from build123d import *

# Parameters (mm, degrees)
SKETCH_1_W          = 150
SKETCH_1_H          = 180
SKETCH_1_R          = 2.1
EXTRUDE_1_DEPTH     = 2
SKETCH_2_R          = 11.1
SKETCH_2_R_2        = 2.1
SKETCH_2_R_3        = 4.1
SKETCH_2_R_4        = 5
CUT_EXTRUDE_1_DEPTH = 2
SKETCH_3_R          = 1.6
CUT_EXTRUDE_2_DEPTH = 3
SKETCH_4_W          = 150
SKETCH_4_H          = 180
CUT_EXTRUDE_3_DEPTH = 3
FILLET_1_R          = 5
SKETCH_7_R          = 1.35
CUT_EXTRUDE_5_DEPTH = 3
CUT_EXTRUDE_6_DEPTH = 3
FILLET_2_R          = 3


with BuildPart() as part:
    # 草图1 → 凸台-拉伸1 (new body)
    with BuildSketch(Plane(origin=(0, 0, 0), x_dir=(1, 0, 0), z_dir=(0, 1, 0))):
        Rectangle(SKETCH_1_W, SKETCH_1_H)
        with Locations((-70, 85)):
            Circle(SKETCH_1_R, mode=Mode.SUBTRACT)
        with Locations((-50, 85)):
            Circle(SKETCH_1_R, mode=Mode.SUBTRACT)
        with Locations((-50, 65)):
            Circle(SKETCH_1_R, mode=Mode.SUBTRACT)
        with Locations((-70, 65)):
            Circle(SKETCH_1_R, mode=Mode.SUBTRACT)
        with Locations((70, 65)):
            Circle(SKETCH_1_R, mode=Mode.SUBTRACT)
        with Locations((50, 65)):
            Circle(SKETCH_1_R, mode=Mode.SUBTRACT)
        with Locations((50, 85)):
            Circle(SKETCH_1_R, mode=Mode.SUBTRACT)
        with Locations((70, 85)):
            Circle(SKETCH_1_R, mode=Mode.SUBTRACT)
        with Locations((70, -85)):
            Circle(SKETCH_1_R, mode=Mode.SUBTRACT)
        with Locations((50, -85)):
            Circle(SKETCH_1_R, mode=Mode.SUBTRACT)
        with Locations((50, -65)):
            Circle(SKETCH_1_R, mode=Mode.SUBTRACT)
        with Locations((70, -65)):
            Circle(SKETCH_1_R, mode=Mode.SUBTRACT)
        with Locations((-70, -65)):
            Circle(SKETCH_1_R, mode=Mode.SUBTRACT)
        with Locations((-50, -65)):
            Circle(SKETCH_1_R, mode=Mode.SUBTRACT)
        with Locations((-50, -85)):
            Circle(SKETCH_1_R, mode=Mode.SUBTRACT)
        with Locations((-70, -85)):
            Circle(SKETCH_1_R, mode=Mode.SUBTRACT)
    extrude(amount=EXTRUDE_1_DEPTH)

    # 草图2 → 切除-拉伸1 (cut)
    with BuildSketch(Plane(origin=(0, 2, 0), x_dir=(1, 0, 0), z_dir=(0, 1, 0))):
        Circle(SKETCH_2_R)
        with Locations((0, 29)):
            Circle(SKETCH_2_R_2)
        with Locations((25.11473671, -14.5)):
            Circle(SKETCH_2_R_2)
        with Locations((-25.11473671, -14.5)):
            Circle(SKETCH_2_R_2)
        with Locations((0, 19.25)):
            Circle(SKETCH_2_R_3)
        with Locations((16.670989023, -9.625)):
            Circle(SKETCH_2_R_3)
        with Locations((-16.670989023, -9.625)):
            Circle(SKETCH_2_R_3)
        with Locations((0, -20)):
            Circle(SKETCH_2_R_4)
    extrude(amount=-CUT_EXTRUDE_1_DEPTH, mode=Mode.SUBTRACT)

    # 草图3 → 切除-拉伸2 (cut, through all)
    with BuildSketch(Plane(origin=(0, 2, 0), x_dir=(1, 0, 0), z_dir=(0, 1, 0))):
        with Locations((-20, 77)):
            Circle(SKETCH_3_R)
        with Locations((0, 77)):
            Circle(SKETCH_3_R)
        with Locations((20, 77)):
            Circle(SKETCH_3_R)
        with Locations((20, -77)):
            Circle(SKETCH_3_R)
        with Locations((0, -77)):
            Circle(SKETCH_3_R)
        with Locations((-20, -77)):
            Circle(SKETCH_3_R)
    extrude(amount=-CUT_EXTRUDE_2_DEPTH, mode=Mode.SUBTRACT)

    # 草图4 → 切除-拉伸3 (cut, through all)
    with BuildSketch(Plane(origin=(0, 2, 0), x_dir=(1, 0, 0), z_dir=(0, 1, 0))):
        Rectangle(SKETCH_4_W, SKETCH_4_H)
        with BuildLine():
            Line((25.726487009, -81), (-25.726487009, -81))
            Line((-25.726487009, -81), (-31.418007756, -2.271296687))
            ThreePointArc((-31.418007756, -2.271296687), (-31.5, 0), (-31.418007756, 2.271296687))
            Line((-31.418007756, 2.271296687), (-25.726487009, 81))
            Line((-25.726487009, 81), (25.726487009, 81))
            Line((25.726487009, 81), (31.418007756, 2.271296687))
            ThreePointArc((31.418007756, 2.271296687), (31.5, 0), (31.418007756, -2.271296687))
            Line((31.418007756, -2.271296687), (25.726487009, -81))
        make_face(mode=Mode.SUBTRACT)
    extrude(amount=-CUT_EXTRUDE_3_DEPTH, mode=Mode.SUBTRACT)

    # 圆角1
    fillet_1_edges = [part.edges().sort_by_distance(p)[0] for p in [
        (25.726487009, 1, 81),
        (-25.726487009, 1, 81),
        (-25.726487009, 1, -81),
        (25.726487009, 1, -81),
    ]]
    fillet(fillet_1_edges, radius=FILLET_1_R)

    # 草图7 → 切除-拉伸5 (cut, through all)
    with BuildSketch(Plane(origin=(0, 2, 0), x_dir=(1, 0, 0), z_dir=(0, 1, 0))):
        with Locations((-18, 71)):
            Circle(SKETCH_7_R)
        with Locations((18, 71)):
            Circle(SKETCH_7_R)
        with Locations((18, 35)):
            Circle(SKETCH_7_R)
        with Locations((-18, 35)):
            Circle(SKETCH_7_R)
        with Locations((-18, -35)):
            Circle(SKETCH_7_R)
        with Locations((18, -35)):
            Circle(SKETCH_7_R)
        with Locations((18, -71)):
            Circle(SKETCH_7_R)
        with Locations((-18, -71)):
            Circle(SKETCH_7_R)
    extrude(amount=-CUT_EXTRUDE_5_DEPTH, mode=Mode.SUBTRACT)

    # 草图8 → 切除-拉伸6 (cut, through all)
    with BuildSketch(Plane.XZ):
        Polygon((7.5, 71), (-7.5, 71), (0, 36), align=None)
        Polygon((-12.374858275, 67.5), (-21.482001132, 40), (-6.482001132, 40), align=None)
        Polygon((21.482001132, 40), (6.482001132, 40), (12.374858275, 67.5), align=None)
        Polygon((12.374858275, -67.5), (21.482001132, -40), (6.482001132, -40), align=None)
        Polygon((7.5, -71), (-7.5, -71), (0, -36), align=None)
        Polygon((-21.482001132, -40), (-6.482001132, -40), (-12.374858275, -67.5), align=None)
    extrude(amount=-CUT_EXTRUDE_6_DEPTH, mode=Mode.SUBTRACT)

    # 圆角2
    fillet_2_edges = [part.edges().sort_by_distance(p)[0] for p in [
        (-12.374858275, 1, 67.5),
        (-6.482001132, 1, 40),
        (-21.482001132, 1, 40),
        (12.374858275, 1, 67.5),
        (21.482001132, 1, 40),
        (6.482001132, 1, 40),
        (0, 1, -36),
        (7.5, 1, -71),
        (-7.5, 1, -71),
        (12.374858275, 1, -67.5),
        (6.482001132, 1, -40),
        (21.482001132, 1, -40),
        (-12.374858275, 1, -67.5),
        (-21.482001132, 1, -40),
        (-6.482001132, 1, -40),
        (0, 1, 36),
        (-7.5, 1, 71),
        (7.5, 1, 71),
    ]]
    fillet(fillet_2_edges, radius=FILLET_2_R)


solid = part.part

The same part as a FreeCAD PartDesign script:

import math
import FreeCAD as App
import Part
import Sketcher
from FreeCAD import Vector
Q = App.Units.Quantity


def edges_at(feature, points):
    """Names of the edges that pass closest to the given points."""
    edges = feature.Shape.Edges
    near = lambda p: min(range(len(edges)), key=lambda i: edges[i].distToShape(Part.Vertex(*p))[0])
    return sorted({f"Edge{near(p) + 1}" for p in points})


def add_polygon(sketch, points):
    """Adds a closed chain of lines whose ends are joined by coincident constraints."""
    first, n = sketch.GeometryCount, len(points)
    for a, b in zip(points, points[1:] + points[:1]):
        sketch.addGeometry(Part.LineSegment(App.Vector(*a, 0), App.Vector(*b, 0)), False)
    for i in range(n):
        sketch.addConstraint(Sketcher.Constraint("Coincident", first + i, 2, first + (i + 1) % n, 1))

doc = App.newDocument("Part")
body = doc.addObject("PartDesign::Body", "Body")

# Sketch on XZ plane
sketch1 = body.newObject("Sketcher::SketchObject", "Sketch")
sketch1.AttachmentSupport = (doc.getObject("XZ_Plane"), [""])
sketch1.MapMode = "FlatFace"
add_polygon(sketch1, [(-75, -90), (-75, 90), (75, 90), (75, -90)])  # lines 0-3
sketch1.addGeometry(Part.Circle(Vector(-70, 85, 0), Vector(0, 0, 1), 2.1), False)  # 4
sketch1.addGeometry(Part.Circle(Vector(-50, 85, 0), Vector(0, 0, 1), 2.1), False)  # 5
sketch1.addGeometry(Part.Circle(Vector(-70, 65, 0), Vector(0, 0, 1), 2.1), False)  # 6
sketch1.addGeometry(Part.Circle(Vector(-50, 65, 0), Vector(0, 0, 1), 2.1), False)  # 7
sketch1.addGeometry(Part.Circle(Vector(50, 85, 0), Vector(0, 0, 1), 2.1), False)  # 8
sketch1.addGeometry(Part.Circle(Vector(70, 85, 0), Vector(0, 0, 1), 2.1), False)  # 9
sketch1.addGeometry(Part.Circle(Vector(50, 65, 0), Vector(0, 0, 1), 2.1), False)  # 10
sketch1.addGeometry(Part.Circle(Vector(70, 65, 0), Vector(0, 0, 1), 2.1), False)  # 11
sketch1.addGeometry(Part.Circle(Vector(-70, -65, 0), Vector(0, 0, 1), 2.1), False)  # 12
sketch1.addGeometry(Part.Circle(Vector(-50, -65, 0), Vector(0, 0, 1), 2.1), False)  # 13
sketch1.addGeometry(Part.Circle(Vector(-70, -85, 0), Vector(0, 0, 1), 2.1), False)  # 14
sketch1.addGeometry(Part.Circle(Vector(-50, -85, 0), Vector(0, 0, 1), 2.1), False)  # 15
sketch1.addGeometry(Part.Circle(Vector(50, -65, 0), Vector(0, 0, 1), 2.1), False)  # 16
sketch1.addGeometry(Part.Circle(Vector(70, -65, 0), Vector(0, 0, 1), 2.1), False)  # 17
sketch1.addGeometry(Part.Circle(Vector(50, -85, 0), Vector(0, 0, 1), 2.1), False)  # 18
sketch1.addGeometry(Part.Circle(Vector(70, -85, 0), Vector(0, 0, 1), 2.1), False)  # 19
sketch1.addConstraint(Sketcher.Constraint("Vertical", 0))
sketch1.addConstraint(Sketcher.Constraint("Horizontal", 1))
sketch1.addConstraint(Sketcher.Constraint("Vertical", 2))
sketch1.addConstraint(Sketcher.Constraint("Horizontal", 3))
sketch1.addConstraint(Sketcher.Constraint("Equal", 4, 5))
sketch1.addConstraint(Sketcher.Constraint("Equal", 5, 6))
sketch1.addConstraint(Sketcher.Constraint("Equal", 6, 7))
sketch1.addConstraint(Sketcher.Constraint("Equal", 7, 8))
sketch1.addConstraint(Sketcher.Constraint("Equal", 8, 9))
sketch1.addConstraint(Sketcher.Constraint("Equal", 9, 10))
sketch1.addConstraint(Sketcher.Constraint("Equal", 10, 11))
sketch1.addConstraint(Sketcher.Constraint("Equal", 11, 12))
sketch1.addConstraint(Sketcher.Constraint("Equal", 12, 13))
sketch1.addConstraint(Sketcher.Constraint("Equal", 13, 14))
sketch1.addConstraint(Sketcher.Constraint("Equal", 14, 15))
sketch1.addConstraint(Sketcher.Constraint("Equal", 15, 16))
sketch1.addConstraint(Sketcher.Constraint("Equal", 16, 17))
sketch1.addConstraint(Sketcher.Constraint("Equal", 17, 18))
sketch1.addConstraint(Sketcher.Constraint("Equal", 18, 19))
sketch1.addConstraint(Sketcher.Constraint("Symmetric", 11, 3, 12, 3, -1, 1))
sketch1.addConstraint(Sketcher.Constraint("Symmetric", 10, 3, 13, 3, -1, 1))
sketch1.addConstraint(Sketcher.Constraint("Symmetric", 9, 3, 14, 3, -1, 1))
sketch1.addConstraint(Sketcher.Constraint("Symmetric", 8, 3, 15, 3, -1, 1))
sketch1.addConstraint(Sketcher.Constraint("Symmetric", 7, 3, 16, 3, -1, 1))
sketch1.addConstraint(Sketcher.Constraint("Symmetric", 6, 3, 17, 3, -1, 1))
sketch1.addConstraint(Sketcher.Constraint("Symmetric", 5, 3, 18, 3, -1, 1))
sketch1.addConstraint(Sketcher.Constraint("Symmetric", 4, 3, 19, 3, -1, 1))
sketch1.addConstraint(Sketcher.Constraint("Symmetric", 0, 2, 2, 2, -1, 1))
sketch1.addConstraint(Sketcher.Constraint("Symmetric", 5, 3, 8, 3, -2))
sketch1.addConstraint(Sketcher.Constraint("Symmetric", 4, 3, 9, 3, -2))
sketch1.addConstraint(Sketcher.Constraint("Symmetric", 7, 3, 10, 3, -2))
sketch1.addConstraint(Sketcher.Constraint("Symmetric", 6, 3, 11, 3, -2))
sketch1.addConstraint(Sketcher.Constraint("Horizontal", 4, 3, 5, 3))
sketch1.addConstraint(Sketcher.Constraint("Horizontal", 6, 3, 7, 3))
sketch1.addConstraint(Sketcher.Constraint("Vertical", 4, 3, 6, 3))
sketch1.addConstraint(Sketcher.Constraint("Vertical", 5, 3, 7, 3))
sketch1.addConstraint(Sketcher.Constraint("Diameter", 4, Q("4.2 mm")))
sketch1.addConstraint(Sketcher.Constraint("DistanceX", 1, 1, 1, 2, Q("150 mm")))
sketch1.addConstraint(Sketcher.Constraint("DistanceY", 0, 1, 0, 2, Q("180 mm")))
sketch1.addConstraint(Sketcher.Constraint("DistanceX", 4, 3, -1, 1, Q("70 mm")))
sketch1.addConstraint(Sketcher.Constraint("DistanceY", -1, 1, 4, 3, Q("85 mm")))
sketch1.addConstraint(Sketcher.Constraint("DistanceX", 5, 3, -1, 1, Q("50 mm")))
sketch1.addConstraint(Sketcher.Constraint("DistanceY", -1, 1, 6, 3, Q("65 mm")))
pad1 = body.newObject("PartDesign::Pad", "Pad")
pad1.Profile = sketch1
pad1.Length = 2
pad1.Reversed = True

# Sketch on XZ plane
sketch2 = body.newObject("Sketcher::SketchObject", "Sketch001")
sketch2.AttachmentSupport = (doc.getObject("XZ_Plane"), [""])
sketch2.MapMode = "FlatFace"
sketch2.AttachmentOffset = App.Placement(Vector(0, 0, -2), App.Rotation())
sketch2.addGeometry(Part.Circle(Vector(0, 0, 0), Vector(0, 0, 1), 11.1), False)
sketch2.addGeometry(Part.Circle(Vector(0, -29, 0), Vector(0, 0, 1), 2.1), False)
sketch2.addGeometry(Part.Circle(Vector(25.1, 14.5, 0), Vector(0, 0, 1), 2.1), False)
sketch2.addGeometry(Part.Circle(Vector(-25.1, 14.5, 0), Vector(0, 0, 1), 2.1), False)
sketch2.addGeometry(Part.Circle(Vector(0, -19.2, 0), Vector(0, 0, 1), 4.1), False)
sketch2.addGeometry(Part.Circle(Vector(16.7, 9.6, 0), Vector(0, 0, 1), 4.1), False)
sketch2.addGeometry(Part.Circle(Vector(-16.7, 9.6, 0), Vector(0, 0, 1), 4.1), False)
sketch2.addGeometry(Part.Circle(Vector(0, 20, 0), Vector(0, 0, 1), 5), False)
sketch2.addConstraint(Sketcher.Constraint("Coincident", 0, 3, -1, 1))
sketch2.addConstraint(Sketcher.Constraint("Equal", 1, 2))
sketch2.addConstraint(Sketcher.Constraint("Equal", 2, 3))
sketch2.addConstraint(Sketcher.Constraint("Equal", 4, 5))
sketch2.addConstraint(Sketcher.Constraint("Equal", 5, 6))
sketch2.addConstraint(Sketcher.Constraint("Symmetric", 2, 3, 3, 3, -2))
sketch2.addConstraint(Sketcher.Constraint("Symmetric", 5, 3, 6, 3, -2))
sketch2.addConstraint(Sketcher.Constraint("PointOnObject", 1, 3, -2))
sketch2.addConstraint(Sketcher.Constraint("PointOnObject", 4, 3, -2))
sketch2.addConstraint(Sketcher.Constraint("PointOnObject", 7, 3, -2))
sketch2.addConstraint(Sketcher.Constraint("Diameter", 7, Q("10 mm")))
sketch2.addConstraint(Sketcher.Constraint("Diameter", 0, Q("22.2 mm")))
sketch2.addConstraint(Sketcher.Constraint("Diameter", 1, Q("4.2 mm")))
sketch2.addConstraint(Sketcher.Constraint("Diameter", 4, Q("8.2 mm")))
sketch2.addConstraint(Sketcher.Constraint("DistanceY", 1, 3, -1, 1, Q("29 mm")))
sketch2.addConstraint(Sketcher.Constraint("DistanceY", -1, 1, 7, 3, Q("20 mm")))
sketch2.addConstraint(Sketcher.Constraint("DistanceY", -1, 1, 2, 3, Q("14.5 mm")))
sketch2.addConstraint(Sketcher.Constraint("DistanceY", 4, 3, -1, 1, Q("19.25 mm")))
sketch2.addConstraint(Sketcher.Constraint("DistanceY", -1, 1, 5, 3, Q("9.625 mm")))
sketch2.addConstraint(Sketcher.Constraint("DistanceX", -1, 1, 5, 3, Q("16.670989 mm")))
sketch2.addConstraint(Sketcher.Constraint("DistanceX", -1, 1, 2, 3, Q("25.114737 mm")))
pocket1 = body.newObject("PartDesign::Pocket", "Pocket")
pocket1.Profile = sketch2
pocket1.Length = 2
pocket1.Reversed = True

# Sketch on XZ plane
sketch3 = body.newObject("Sketcher::SketchObject", "Sketch002")
sketch3.AttachmentSupport = (doc.getObject("XZ_Plane"), [""])
sketch3.MapMode = "FlatFace"
sketch3.AttachmentOffset = App.Placement(Vector(0, 0, -2), App.Rotation())
sketch3.addGeometry(Part.Circle(Vector(-20, -77, 0), Vector(0, 0, 1), 1.6), False)
sketch3.addGeometry(Part.Circle(Vector(0, -77, 0), Vector(0, 0, 1), 1.6), False)
sketch3.addGeometry(Part.Circle(Vector(20, -77, 0), Vector(0, 0, 1), 1.6), False)
sketch3.addGeometry(Part.Circle(Vector(20, 77, 0), Vector(0, 0, 1), 1.6), False)
sketch3.addGeometry(Part.Circle(Vector(0, 77, 0), Vector(0, 0, 1), 1.6), False)
sketch3.addGeometry(Part.Circle(Vector(-20, 77, 0), Vector(0, 0, 1), 1.6), False)
sketch3.addConstraint(Sketcher.Constraint("Equal", 0, 1))
sketch3.addConstraint(Sketcher.Constraint("Equal", 1, 2))
sketch3.addConstraint(Sketcher.Constraint("Equal", 2, 3))
sketch3.addConstraint(Sketcher.Constraint("Equal", 3, 4))
sketch3.addConstraint(Sketcher.Constraint("Equal", 4, 5))
sketch3.addConstraint(Sketcher.Constraint("Symmetric", 0, 3, 3, 3, -1, 1))
sketch3.addConstraint(Sketcher.Constraint("Symmetric", 1, 3, 4, 3, -1, 1))
sketch3.addConstraint(Sketcher.Constraint("Symmetric", 2, 3, 5, 3, -1, 1))
sketch3.addConstraint(Sketcher.Constraint("Symmetric", 0, 3, 2, 3, -2))
sketch3.addConstraint(Sketcher.Constraint("PointOnObject", 1, 3, -2))
sketch3.addConstraint(Sketcher.Constraint("Horizontal", 0, 3, 1, 3))
sketch3.addConstraint(Sketcher.Constraint("Diameter", 0, Q("3.2 mm")))
sketch3.addConstraint(Sketcher.Constraint("DistanceX", 0, 3, -1, 1, Q("20 mm")))
sketch3.addConstraint(Sketcher.Constraint("DistanceY", 0, 3, -1, 1, Q("77 mm")))
pocket2 = body.newObject("PartDesign::Pocket", "Pocket001")
pocket2.Profile = sketch3
pocket2.Type = "ThroughAll"
pocket2.Reversed = True

# Sketch on XZ plane
sketch4 = body.newObject("Sketcher::SketchObject", "Sketch003")
sketch4.AttachmentSupport = (doc.getObject("XZ_Plane"), [""])
sketch4.MapMode = "FlatFace"
sketch4.AttachmentOffset = App.Placement(Vector(0, 0, -2), App.Rotation())
add_polygon(sketch4, [(-75, -90), (-75, 90), (75, 90), (75, -90)])  # lines 0-3
sketch4.addGeometry(Part.LineSegment(Vector(31.4, 2.3, 0), Vector(25.7, 81, 0)), False)  # 4
sketch4.addGeometry(Part.LineSegment(Vector(25.7, 81, 0), Vector(-25.7, 81, 0)), False)  # 5
sketch4.addGeometry(Part.LineSegment(Vector(-25.7, 81, 0), Vector(-31.4, 2.3, 0)), False)  # 6
sketch4.addGeometry(Part.ArcOfCircle(Part.Circle(Vector(0, 0, 0), Vector(0, 0, 1), 31.5), math.radians(175.87), math.radians(184.13)), False)  # 7
sketch4.addGeometry(Part.LineSegment(Vector(-31.4, -2.3, 0), Vector(-25.7, -81, 0)), False)  # 8
sketch4.addGeometry(Part.LineSegment(Vector(-25.7, -81, 0), Vector(25.7, -81, 0)), False)  # 9
sketch4.addGeometry(Part.LineSegment(Vector(25.7, -81, 0), Vector(31.4, -2.3, 0)), False)  # 10
sketch4.addGeometry(Part.ArcOfCircle(Part.Circle(Vector(0, 0, 0), Vector(0, 0, 1), 31.5), math.radians(-4.13), math.radians(4.13)), False)  # 11
sketch4.addConstraint(Sketcher.Constraint("Coincident", 4, 2, 5, 1))
sketch4.addConstraint(Sketcher.Constraint("Coincident", 5, 2, 6, 1))
sketch4.addConstraint(Sketcher.Constraint("Tangent", 6, 2, 7, 1))
sketch4.addConstraint(Sketcher.Constraint("Tangent", 7, 2, 8, 1))
sketch4.addConstraint(Sketcher.Constraint("Coincident", 8, 2, 9, 1))
sketch4.addConstraint(Sketcher.Constraint("Coincident", 9, 2, 10, 1))
sketch4.addConstraint(Sketcher.Constraint("Tangent", 10, 2, 11, 1))
sketch4.addConstraint(Sketcher.Constraint("Tangent", 11, 2, 4, 1))
sketch4.addConstraint(Sketcher.Constraint("Vertical", 0))
sketch4.addConstraint(Sketcher.Constraint("Horizontal", 1))
sketch4.addConstraint(Sketcher.Constraint("Vertical", 2))
sketch4.addConstraint(Sketcher.Constraint("Horizontal", 3))
sketch4.addConstraint(Sketcher.Constraint("Horizontal", 5))
sketch4.addConstraint(Sketcher.Constraint("Horizontal", 9))
sketch4.addConstraint(Sketcher.Constraint("Coincident", 7, 3, -1, 1))
sketch4.addConstraint(Sketcher.Constraint("Coincident", 11, 3, -1, 1))
sketch4.addConstraint(Sketcher.Constraint("Equal", 7, 11))
sketch4.addConstraint(Sketcher.Constraint("Symmetric", 0, 2, 2, 2, -1, 1))
sketch4.addConstraint(Sketcher.Constraint("Symmetric", 4, 2, 8, 2, -1, 1))
sketch4.addConstraint(Sketcher.Constraint("Parallel", 6, 10))
sketch4.addConstraint(Sketcher.Constraint("Horizontal", 7, 2, 10, 2))
sketch4.addConstraint(Sketcher.Constraint("Radius", 7, Q("31.5 mm")))
sketch4.addConstraint(Sketcher.Constraint("DistanceX", 1, 1, 1, 2, Q("150 mm")))
sketch4.addConstraint(Sketcher.Constraint("DistanceY", 0, 1, 0, 2, Q("180 mm")))
sketch4.addConstraint(Sketcher.Constraint("DistanceY", -1, 1, 4, 2, Q("81 mm")))
sketch4.addConstraint(Sketcher.Constraint("DistanceX", 5, 2, 5, 1, Q("51.452974 mm")))
pocket3 = body.newObject("PartDesign::Pocket", "Pocket002")
pocket3.Profile = sketch4
pocket3.Type = "ThroughAll"
pocket3.Reversed = True
doc.recompute()

fillet = body.newObject("PartDesign::Fillet", "Fillet")
fillet.Base = (pocket3, edges_at(pocket3, [
    (25.726, 1, 81),
    (-25.726, 1, 81),
    (-25.726, 1, -81),
    (25.726, 1, -81),
]))
fillet.Radius = 5

# Sketch on XZ plane
sketch5 = body.newObject("Sketcher::SketchObject", "Sketch004")
sketch5.AttachmentSupport = (doc.getObject("XZ_Plane"), [""])
sketch5.MapMode = "FlatFace"
sketch5.AttachmentOffset = App.Placement(Vector(0, 0, -2), App.Rotation())
sketch5.addGeometry(Part.Circle(Vector(-18, -71, 0), Vector(0, 0, 1), 1.4), False)
sketch5.addGeometry(Part.Circle(Vector(18, -71, 0), Vector(0, 0, 1), 1.4), False)
sketch5.addGeometry(Part.Circle(Vector(18, -35, 0), Vector(0, 0, 1), 1.4), False)
sketch5.addGeometry(Part.Circle(Vector(-18, -35, 0), Vector(0, 0, 1), 1.4), False)
sketch5.addGeometry(Part.Circle(Vector(-18, 35, 0), Vector(0, 0, 1), 1.4), False)
sketch5.addGeometry(Part.Circle(Vector(18, 35, 0), Vector(0, 0, 1), 1.4), False)
sketch5.addGeometry(Part.Circle(Vector(18, 71, 0), Vector(0, 0, 1), 1.4), False)
sketch5.addGeometry(Part.Circle(Vector(-18, 71, 0), Vector(0, 0, 1), 1.4), False)
sketch5.addConstraint(Sketcher.Constraint("Equal", 0, 1))
sketch5.addConstraint(Sketcher.Constraint("Equal", 1, 2))
sketch5.addConstraint(Sketcher.Constraint("Equal", 2, 3))
sketch5.addConstraint(Sketcher.Constraint("Equal", 3, 4))
sketch5.addConstraint(Sketcher.Constraint("Equal", 4, 5))
sketch5.addConstraint(Sketcher.Constraint("Equal", 5, 6))
sketch5.addConstraint(Sketcher.Constraint("Equal", 6, 7))
sketch5.addConstraint(Sketcher.Constraint("Symmetric", 2, 3, 4, 3, -1, 1))
sketch5.addConstraint(Sketcher.Constraint("Symmetric", 3, 3, 5, 3, -1, 1))
sketch5.addConstraint(Sketcher.Constraint("Symmetric", 0, 3, 6, 3, -1, 1))
sketch5.addConstraint(Sketcher.Constraint("Symmetric", 1, 3, 7, 3, -1, 1))
sketch5.addConstraint(Sketcher.Constraint("Symmetric", 0, 3, 1, 3, -2))
sketch5.addConstraint(Sketcher.Constraint("Symmetric", 2, 3, 3, 3, -2))
sketch5.addConstraint(Sketcher.Constraint("Vertical", 1, 3, 2, 3))
sketch5.addConstraint(Sketcher.Constraint("Diameter", 0, Q("2.7 mm")))
sketch5.addConstraint(Sketcher.Constraint("DistanceX", 0, 3, -1, 1, Q("18 mm")))
sketch5.addConstraint(Sketcher.Constraint("DistanceY", 0, 3, -1, 1, Q("71 mm")))
sketch5.addConstraint(Sketcher.Constraint("DistanceY", 2, 3, -1, 1, Q("35 mm")))
pocket4 = body.newObject("PartDesign::Pocket", "Pocket003")
pocket4.Profile = sketch5
pocket4.Type = "ThroughAll"
pocket4.Reversed = True

# Sketch on XZ plane
sketch6 = body.newObject("Sketcher::SketchObject", "Sketch005")
sketch6.AttachmentSupport = (doc.getObject("XZ_Plane"), [""])
sketch6.MapMode = "FlatFace"
add_polygon(sketch6, [(8, 71), (-8, 71), (0, 36)])  # lines 0-2
add_polygon(sketch6, [(-12, 68), (-21, 40), (-6, 40)])  # lines 3-5
add_polygon(sketch6, [(6, 40), (21, 40), (12, 68)])  # lines 6-8
add_polygon(sketch6, [(12, -68), (21, -40), (6, -40)])  # lines 9-11
add_polygon(sketch6, [(-8, -71), (8, -71), (0, -36)])  # lines 12-14
add_polygon(sketch6, [(-6, -40), (-21, -40), (-12, -68)])  # lines 15-17
sketch6.addConstraint(Sketcher.Constraint("Horizontal", 0))
sketch6.addConstraint(Sketcher.Constraint("Horizontal", 4))
sketch6.addConstraint(Sketcher.Constraint("Horizontal", 6))
sketch6.addConstraint(Sketcher.Constraint("Horizontal", 10))
sketch6.addConstraint(Sketcher.Constraint("Horizontal", 12))
sketch6.addConstraint(Sketcher.Constraint("Horizontal", 15))
sketch6.addConstraint(Sketcher.Constraint("Symmetric", 3, 2, 9, 2, -1, 1))
sketch6.addConstraint(Sketcher.Constraint("Symmetric", 5, 2, 11, 2, -1, 1))
sketch6.addConstraint(Sketcher.Constraint("Symmetric", 0, 2, 12, 2, -1, 1))
sketch6.addConstraint(Sketcher.Constraint("Symmetric", 1, 2, 13, 2, -1, 1))
sketch6.addConstraint(Sketcher.Constraint("Symmetric", 6, 2, 15, 2, -1, 1))
sketch6.addConstraint(Sketcher.Constraint("Symmetric", 7, 2, 16, 2, -1, 1))
sketch6.addConstraint(Sketcher.Constraint("Symmetric", 3, 2, 6, 2, -2))
sketch6.addConstraint(Sketcher.Constraint("Symmetric", 5, 2, 7, 2, -2))
sketch6.addConstraint(Sketcher.Constraint("PointOnObject", 1, 2, -2))
sketch6.addConstraint(Sketcher.Constraint("Parallel", 1, 5))
sketch6.addConstraint(Sketcher.Constraint("Parallel", 2, 8))
sketch6.addConstraint(Sketcher.Constraint("Parallel", 5, 11))
sketch6.addConstraint(Sketcher.Constraint("Parallel", 8, 14))
sketch6.addConstraint(Sketcher.Constraint("Parallel", 14, 17))
sketch6.addConstraint(Sketcher.Constraint("Vertical", 8, 2, 10, 2))
sketch6.addConstraint(Sketcher.Constraint("Equal", 0, 4))
sketch6.addConstraint(Sketcher.Constraint("DistanceX", 0, 2, 0, 1, Q("15 mm")))
sketch6.addConstraint(Sketcher.Constraint("DistanceY", -1, 1, 0, 2, Q("71 mm")))
sketch6.addConstraint(Sketcher.Constraint("DistanceY", -1, 1, 1, 2, Q("36 mm")))
sketch6.addConstraint(Sketcher.Constraint("DistanceY", -1, 1, 3, 2, Q("40 mm")))
sketch6.addConstraint(Sketcher.Constraint("DistanceY", -1, 1, 5, 2, Q("67.5 mm")))
sketch6.addConstraint(Sketcher.Constraint("DistanceX", 3, 2, -1, 1, Q("21.482001 mm")))
pocket5 = body.newObject("PartDesign::Pocket", "Pocket004")
pocket5.Profile = sketch6
pocket5.Type = "ThroughAll"
doc.recompute()

fillet2 = body.newObject("PartDesign::Fillet", "Fillet001")
fillet2.Base = (pocket5, edges_at(pocket5, [
    (-12.375, 1, 67.5),
    (-6.482, 1, 40),
    (-21.482, 1, 40),
    (12.375, 1, 67.5),
    (21.482, 1, 40),
    (6.482, 1, 40),
    (0, 1, -36),
    (7.5, 1, -71),
    (-7.5, 1, -71),
    (12.375, 1, -67.5),
    (6.482, 1, -40),
    (21.482, 1, -40),
    (-12.375, 1, -67.5),
    (-21.482, 1, -40),
    (-6.482, 1, -40),
    (0, 1, 36),
    (-7.5, 1, 71),
    (7.5, 1, 71),
]))
fillet2.Radius = 3

doc.recompute()
